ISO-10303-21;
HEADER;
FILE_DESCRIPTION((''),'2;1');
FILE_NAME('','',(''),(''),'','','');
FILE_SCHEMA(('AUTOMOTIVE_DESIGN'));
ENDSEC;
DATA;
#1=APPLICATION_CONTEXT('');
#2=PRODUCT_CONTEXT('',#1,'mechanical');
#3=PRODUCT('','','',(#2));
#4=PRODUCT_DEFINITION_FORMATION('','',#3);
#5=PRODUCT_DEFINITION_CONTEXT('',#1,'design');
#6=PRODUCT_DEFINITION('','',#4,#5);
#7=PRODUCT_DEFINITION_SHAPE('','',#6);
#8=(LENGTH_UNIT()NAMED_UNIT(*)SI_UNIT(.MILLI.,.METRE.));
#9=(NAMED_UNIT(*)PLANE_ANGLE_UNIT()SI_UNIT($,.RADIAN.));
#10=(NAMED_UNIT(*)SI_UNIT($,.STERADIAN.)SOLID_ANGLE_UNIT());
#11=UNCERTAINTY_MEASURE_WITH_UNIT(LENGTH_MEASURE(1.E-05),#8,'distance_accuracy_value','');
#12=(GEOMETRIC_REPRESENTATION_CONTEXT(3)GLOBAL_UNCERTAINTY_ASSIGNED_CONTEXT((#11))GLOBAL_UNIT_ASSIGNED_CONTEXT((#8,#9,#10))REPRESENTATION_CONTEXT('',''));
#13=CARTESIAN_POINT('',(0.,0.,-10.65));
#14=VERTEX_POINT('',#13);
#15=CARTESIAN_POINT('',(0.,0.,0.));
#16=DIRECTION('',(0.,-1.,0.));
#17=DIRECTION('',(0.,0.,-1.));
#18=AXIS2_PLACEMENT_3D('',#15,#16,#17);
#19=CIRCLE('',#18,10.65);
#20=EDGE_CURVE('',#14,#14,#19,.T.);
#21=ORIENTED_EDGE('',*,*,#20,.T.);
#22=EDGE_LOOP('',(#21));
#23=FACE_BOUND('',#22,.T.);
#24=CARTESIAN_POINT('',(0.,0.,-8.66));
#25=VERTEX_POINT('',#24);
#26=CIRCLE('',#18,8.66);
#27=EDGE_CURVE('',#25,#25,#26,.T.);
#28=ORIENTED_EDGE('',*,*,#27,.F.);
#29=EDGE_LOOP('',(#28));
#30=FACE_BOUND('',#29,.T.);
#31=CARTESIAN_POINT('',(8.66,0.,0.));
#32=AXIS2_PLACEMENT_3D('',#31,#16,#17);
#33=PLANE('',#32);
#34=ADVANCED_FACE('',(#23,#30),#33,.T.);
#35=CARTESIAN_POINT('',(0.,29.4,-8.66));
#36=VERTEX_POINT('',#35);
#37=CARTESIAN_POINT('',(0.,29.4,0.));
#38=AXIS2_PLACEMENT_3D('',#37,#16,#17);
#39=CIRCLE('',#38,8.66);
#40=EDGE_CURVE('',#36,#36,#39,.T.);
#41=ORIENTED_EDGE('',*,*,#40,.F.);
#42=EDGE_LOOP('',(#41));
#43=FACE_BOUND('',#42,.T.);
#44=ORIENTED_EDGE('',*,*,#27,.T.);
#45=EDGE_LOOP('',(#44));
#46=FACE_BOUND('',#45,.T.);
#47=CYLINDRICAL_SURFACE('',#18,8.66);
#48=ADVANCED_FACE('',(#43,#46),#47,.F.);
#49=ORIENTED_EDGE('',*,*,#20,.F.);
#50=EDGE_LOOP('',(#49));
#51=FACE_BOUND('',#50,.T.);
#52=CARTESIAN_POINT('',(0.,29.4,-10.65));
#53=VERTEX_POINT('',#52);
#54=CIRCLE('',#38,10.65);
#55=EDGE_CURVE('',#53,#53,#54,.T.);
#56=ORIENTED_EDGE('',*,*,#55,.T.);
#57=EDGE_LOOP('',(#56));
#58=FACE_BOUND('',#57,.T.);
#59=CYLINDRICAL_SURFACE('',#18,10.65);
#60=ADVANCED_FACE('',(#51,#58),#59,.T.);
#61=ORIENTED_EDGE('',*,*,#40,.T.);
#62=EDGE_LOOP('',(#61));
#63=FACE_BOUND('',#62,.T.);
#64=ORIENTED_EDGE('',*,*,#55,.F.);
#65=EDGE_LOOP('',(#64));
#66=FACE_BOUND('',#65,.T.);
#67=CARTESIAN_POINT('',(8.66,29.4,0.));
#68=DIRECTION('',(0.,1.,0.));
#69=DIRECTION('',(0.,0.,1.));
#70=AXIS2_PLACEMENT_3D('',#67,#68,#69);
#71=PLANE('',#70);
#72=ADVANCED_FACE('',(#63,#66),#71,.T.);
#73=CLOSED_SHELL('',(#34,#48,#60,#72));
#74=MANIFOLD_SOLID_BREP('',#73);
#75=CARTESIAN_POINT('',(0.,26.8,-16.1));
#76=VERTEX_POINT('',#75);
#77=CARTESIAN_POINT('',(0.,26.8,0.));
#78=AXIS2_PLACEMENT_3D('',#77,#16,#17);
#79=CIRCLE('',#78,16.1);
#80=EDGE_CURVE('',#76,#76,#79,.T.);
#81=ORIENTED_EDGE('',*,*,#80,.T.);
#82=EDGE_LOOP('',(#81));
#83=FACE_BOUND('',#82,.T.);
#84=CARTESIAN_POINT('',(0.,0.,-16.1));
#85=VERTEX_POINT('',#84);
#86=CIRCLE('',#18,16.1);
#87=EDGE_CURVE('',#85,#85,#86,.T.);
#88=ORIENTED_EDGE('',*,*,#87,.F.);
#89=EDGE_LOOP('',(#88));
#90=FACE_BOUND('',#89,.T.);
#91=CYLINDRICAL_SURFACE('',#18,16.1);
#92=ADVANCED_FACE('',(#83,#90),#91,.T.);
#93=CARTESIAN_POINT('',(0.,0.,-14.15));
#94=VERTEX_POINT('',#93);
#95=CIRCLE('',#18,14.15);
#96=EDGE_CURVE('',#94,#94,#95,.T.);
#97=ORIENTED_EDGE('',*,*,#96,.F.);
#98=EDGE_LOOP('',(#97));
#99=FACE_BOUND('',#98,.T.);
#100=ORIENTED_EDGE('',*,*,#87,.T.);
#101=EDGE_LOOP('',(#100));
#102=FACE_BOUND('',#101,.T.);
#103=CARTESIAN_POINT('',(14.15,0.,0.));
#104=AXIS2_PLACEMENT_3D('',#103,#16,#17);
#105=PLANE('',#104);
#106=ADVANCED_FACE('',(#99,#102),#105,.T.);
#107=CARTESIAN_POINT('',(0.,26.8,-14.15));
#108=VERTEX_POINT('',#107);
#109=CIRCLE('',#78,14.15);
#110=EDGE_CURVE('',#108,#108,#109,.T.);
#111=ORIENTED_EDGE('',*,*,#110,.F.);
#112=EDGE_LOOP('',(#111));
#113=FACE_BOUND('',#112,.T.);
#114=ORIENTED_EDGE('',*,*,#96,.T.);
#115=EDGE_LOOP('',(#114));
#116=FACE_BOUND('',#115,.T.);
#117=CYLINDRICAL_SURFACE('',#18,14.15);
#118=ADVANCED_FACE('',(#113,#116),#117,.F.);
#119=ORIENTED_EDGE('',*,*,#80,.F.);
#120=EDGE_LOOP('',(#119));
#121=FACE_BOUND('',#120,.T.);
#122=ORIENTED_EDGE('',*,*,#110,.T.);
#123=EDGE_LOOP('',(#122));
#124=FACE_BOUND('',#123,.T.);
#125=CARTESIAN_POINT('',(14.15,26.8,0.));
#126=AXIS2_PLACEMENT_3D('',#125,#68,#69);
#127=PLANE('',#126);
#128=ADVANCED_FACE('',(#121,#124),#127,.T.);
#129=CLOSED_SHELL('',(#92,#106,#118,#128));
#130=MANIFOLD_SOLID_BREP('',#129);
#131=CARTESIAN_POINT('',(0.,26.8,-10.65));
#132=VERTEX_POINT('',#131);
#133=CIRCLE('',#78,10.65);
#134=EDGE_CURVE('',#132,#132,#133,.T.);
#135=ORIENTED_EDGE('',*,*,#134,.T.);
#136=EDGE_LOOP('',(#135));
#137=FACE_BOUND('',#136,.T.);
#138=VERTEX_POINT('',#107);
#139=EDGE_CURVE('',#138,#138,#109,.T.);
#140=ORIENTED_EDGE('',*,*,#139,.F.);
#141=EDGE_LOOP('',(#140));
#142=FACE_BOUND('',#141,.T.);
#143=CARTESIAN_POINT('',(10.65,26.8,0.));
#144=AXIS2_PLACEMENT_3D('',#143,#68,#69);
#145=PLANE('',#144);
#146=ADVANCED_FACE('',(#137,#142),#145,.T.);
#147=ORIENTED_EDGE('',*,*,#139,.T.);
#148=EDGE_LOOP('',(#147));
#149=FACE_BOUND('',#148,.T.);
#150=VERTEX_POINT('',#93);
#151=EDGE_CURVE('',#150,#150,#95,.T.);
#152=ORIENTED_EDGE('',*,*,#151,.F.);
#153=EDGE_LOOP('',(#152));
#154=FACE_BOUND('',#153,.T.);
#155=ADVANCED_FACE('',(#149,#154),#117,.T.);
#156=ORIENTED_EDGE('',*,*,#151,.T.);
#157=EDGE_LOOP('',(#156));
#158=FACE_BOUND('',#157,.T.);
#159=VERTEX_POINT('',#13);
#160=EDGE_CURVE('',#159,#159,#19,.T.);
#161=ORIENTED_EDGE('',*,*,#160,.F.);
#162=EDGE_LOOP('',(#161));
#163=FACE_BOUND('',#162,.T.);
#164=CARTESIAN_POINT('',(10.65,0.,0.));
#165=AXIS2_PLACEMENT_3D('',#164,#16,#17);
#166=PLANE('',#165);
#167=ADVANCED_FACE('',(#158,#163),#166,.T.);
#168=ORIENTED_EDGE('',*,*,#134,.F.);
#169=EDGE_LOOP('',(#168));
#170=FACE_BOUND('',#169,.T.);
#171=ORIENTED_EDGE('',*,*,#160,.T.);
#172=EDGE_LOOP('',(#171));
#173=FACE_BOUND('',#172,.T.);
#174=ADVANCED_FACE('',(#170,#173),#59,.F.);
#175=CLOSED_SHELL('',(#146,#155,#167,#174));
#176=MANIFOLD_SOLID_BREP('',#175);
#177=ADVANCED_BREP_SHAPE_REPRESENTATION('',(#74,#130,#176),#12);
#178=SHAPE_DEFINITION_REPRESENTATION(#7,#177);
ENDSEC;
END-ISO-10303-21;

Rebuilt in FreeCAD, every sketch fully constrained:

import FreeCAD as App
import Part
import Sketcher
Q = App.Units.Quantity


def add_polygon(sketch, points):
    """Adds a closed chain of lines whose ends are joined by coincident constraints."""
    first, n = sketch.GeometryCount, len(points)
    for a, b in zip(points, points[1:] + points[:1]):
        sketch.addGeometry(Part.LineSegment(App.Vector(*a, 0), App.Vector(*b, 0)), False)
    for i in range(n):
        sketch.addConstraint(Sketcher.Constraint("Coincident", first + i, 2, first + (i + 1) % n, 1))

doc = App.newDocument("Part")
body = doc.addObject("PartDesign::Body", "Body")
body.AllowCompound = True

# Sketch on XY plane
sketch1 = body.newObject("Sketcher::SketchObject", "Sketch")
sketch1.AttachmentSupport = (doc.getObject("XY_Plane"), [""])
sketch1.MapMode = "FlatFace"
add_polygon(sketch1, [(8.66, 29.4), (8.66, 0), (10.65, 0), (10.65, 29.4)])  # lines 0-3
add_polygon(sketch1, [(14.15, 26.8), (14.15, 0), (16.1, 0), (16.1, 26.8)])  # lines 4-7
sketch1.addConstraint(Sketcher.Constraint("Vertical", 0))
sketch1.addConstraint(Sketcher.Constraint("Horizontal", 1))
sketch1.addConstraint(Sketcher.Constraint("Vertical", 2))
sketch1.addConstraint(Sketcher.Constraint("Horizontal", 3))
sketch1.addConstraint(Sketcher.Constraint("Vertical", 4))
sketch1.addConstraint(Sketcher.Constraint("Horizontal", 5))
sketch1.addConstraint(Sketcher.Constraint("Vertical", 6))
sketch1.addConstraint(Sketcher.Constraint("Horizontal", 7))
sketch1.addConstraint(Sketcher.Constraint("PointOnObject", 0, 2, -1))
sketch1.addConstraint(Sketcher.Constraint("PointOnObject", 4, 2, -1))
sketch1.addConstraint(Sketcher.Constraint("DistanceY", 0, 2, 0, 1, Q("29.4 mm")))
sketch1.addConstraint(Sketcher.Constraint("DistanceY", 4, 2, 4, 1, Q("26.8 mm")))
sketch1.addConstraint(Sketcher.Constraint("DistanceX", 1, 1, 1, 2, Q("1.99 mm")))
sketch1.addConstraint(Sketcher.Constraint("DistanceX", 5, 1, 5, 2, Q("1.95 mm")))
sketch1.addConstraint(Sketcher.Constraint("DistanceX", -1, 1, 5, 2, Q("16.1 mm")))
sketch1.addConstraint(Sketcher.Constraint("DistanceX", 1, 2, 4, 2, Q("3.5 mm")))
revolution = body.newObject("PartDesign::Revolution", "Revolution")
revolution.Profile = sketch1
revolution.ReferenceAxis = (sketch1, ["V_Axis"])
revolution.Angle = 360
body2 = doc.addObject("PartDesign::Body", "Body001")

# Sketch on XY plane
sketch2 = body2.newObject("Sketcher::SketchObject", "Sketch001")
sketch2.AttachmentSupport = (doc.getObject("XY_Plane001"), [""])
sketch2.MapMode = "FlatFace"
add_polygon(sketch2, [(10.65, 26.8), (10.65, 0), (14.15, 0), (14.15, 26.8)])  # lines 0-3
sketch2.addConstraint(Sketcher.Constraint("Vertical", 0))
sketch2.addConstraint(Sketcher.Constraint("Horizontal", 1))
sketch2.addConstraint(Sketcher.Constraint("Vertical", 2))
sketch2.addConstraint(Sketcher.Constraint("Horizontal", 3))
sketch2.addConstraint(Sketcher.Constraint("PointOnObject", 0, 2, -1))
sketch2.addConstraint(Sketcher.Constraint("DistanceX", 1, 1, 1, 2, Q("3.5 mm")))
sketch2.addConstraint(Sketcher.Constraint("DistanceY", 0, 2, 0, 1, Q("26.8 mm")))
sketch2.addConstraint(Sketcher.Constraint("DistanceX", -1, 1, 0, 2, Q("10.65 mm")))
revolution2 = body2.newObject("PartDesign::Revolution", "Revolution001")
revolution2.Profile = sketch2
revolution2.ReferenceAxis = (sketch2, ["V_Axis"])
revolution2.Angle = 360

doc.recompute()
